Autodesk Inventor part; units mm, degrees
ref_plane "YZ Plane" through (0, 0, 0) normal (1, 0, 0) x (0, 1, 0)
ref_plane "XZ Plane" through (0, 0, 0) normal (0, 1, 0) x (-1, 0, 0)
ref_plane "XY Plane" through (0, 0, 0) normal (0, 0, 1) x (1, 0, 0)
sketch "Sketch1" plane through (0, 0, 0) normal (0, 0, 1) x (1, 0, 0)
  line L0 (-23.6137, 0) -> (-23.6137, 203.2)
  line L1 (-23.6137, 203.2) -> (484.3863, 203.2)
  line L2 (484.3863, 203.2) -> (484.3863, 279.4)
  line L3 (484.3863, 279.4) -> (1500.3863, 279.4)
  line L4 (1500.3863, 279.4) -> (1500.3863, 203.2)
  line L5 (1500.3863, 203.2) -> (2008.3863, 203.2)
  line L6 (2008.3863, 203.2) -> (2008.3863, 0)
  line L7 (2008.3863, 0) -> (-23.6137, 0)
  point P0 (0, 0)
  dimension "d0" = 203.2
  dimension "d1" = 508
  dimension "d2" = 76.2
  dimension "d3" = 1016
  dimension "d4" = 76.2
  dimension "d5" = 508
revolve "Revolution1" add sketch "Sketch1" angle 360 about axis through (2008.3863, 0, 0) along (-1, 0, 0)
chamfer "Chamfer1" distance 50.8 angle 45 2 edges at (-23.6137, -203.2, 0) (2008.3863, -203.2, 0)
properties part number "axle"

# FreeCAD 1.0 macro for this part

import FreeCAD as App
import Part
import Sketcher

V = App.Vector
Q = App.Units.Quantity


def edges_at(feature, points):
    """Names of the edges that pass closest to the given points."""
    edges = feature.Shape.Edges
    near = lambda p: min(range(len(edges)), key=lambda i: edges[i].distToShape(Part.Vertex(*p))[0])
    return sorted({f"Edge{near(p) + 1}" for p in points})


def add_polygon(sketch, points):
    """Adds a closed chain of lines whose ends are joined by coincident constraints."""
    first, n = sketch.GeometryCount, len(points)
    for a, b in zip(points, points[1:] + points[:1]):
        sketch.addGeometry(Part.LineSegment(App.Vector(*a, 0), App.Vector(*b, 0)), False)
    for i in range(n):
        sketch.addConstraint(Sketcher.Constraint("Coincident", first + i, 2, first + (i + 1) % n, 1))

doc = App.newDocument("Part")
body = doc.addObject("PartDesign::Body", "Body")

sketch1 = body.newObject("Sketcher::SketchObject", "Sketch")
sketch1.AttachmentSupport = (doc.getObject("XY_Plane"), [""])
sketch1.MapMode = "FlatFace"
add_polygon(sketch1, [(-24, 203), (-24, 0), (2008, 0), (2008, 203), (1500, 203), (1500, 279), (484, 279), (484, 203)])
sketch1.addConstraint([
    Sketcher.Constraint("Vertical", 0),
    Sketcher.Constraint("Horizontal", 1),
    Sketcher.Constraint("Vertical", 2),
    Sketcher.Constraint("Horizontal", 3),
    Sketcher.Constraint("Vertical", 4),
    Sketcher.Constraint("Horizontal", 5),
    Sketcher.Constraint("Vertical", 6),
    Sketcher.Constraint("Horizontal", 7),
    Sketcher.Constraint("PointOnObject", 0, 2, -1),
    Sketcher.Constraint("Horizontal", 3, 2, 6, 2),
    Sketcher.Constraint("Equal", 3, 7),
    Sketcher.Constraint("DistanceX", 3, 2, 3, 1, Q("20 in")),
    Sketcher.Constraint("DistanceX", 5, 2, 5, 1, Q("40 in")),
    Sketcher.Constraint("DistanceY", 0, 2, 0, 1, Q("8 in")),
    Sketcher.Constraint("DistanceY", 4, 1, 4, 2, Q("3 in")),
    Sketcher.Constraint("DistanceX", 0, 2, -1, 1, Q("23.6137 mm")),
])
revolution = body.newObject("PartDesign::Revolution", "Revolution")
revolution.Profile = sketch1
revolution.ReferenceAxis = (sketch1, ["H_Axis"])
revolution.Angle = 360
doc.recompute()

chamfer = body.newObject("PartDesign::Chamfer", "Chamfer")
chamfer.Base = (revolution, edges_at(revolution, [(-23.614, -203.2, 0), (2008.386, -203.2, 0)]))
chamfer.Size = Q("2 in")

doc.recompute()
